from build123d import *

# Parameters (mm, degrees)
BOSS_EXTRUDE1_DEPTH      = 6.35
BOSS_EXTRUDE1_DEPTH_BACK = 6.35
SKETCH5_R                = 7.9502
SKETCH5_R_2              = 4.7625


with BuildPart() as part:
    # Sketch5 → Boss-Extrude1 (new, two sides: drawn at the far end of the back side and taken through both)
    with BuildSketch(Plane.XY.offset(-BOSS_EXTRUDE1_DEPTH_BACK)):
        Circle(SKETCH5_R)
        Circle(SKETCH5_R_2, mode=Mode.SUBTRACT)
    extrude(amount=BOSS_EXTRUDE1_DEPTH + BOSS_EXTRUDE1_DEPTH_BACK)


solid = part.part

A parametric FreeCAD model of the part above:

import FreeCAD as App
import Part
import Sketcher

V = App.Vector
Q = App.Units.Quantity

doc = App.newDocument("Part")
body = doc.addObject("PartDesign::Body", "Body")

# Sketch on XY plane
sketch1 = body.newObject("Sketcher::SketchObject", "Sketch")
sketch1.AttachmentSupport = (doc.getObject("XY_Plane"), [""])
sketch1.MapMode = "FlatFace"
sketch1.addGeometry([
    Part.Circle(V(0, 0, 0), V(0, 0, 1), 8),
    Part.Circle(V(0, 0, 0), V(0, 0, 1), 4.8),
], False)
sketch1.addConstraint([
    Sketcher.Constraint("Coincident", 0, 3, -1, 1),
    Sketcher.Constraint("Coincident", 1, 3, -1, 1),
    Sketcher.Constraint("Diameter", 0, Q("0.626 in")),
    Sketcher.Constraint("Diameter", 1, Q("0.375 in")),
])
pad1 = body.newObject("PartDesign::Pad", "Pad")
pad1.Profile = sketch1
pad1.Type = "TwoLengths"
pad1.Length = Q("0.25 in")
pad1.Length2 = Q("0.25 in")

doc.recompute()
